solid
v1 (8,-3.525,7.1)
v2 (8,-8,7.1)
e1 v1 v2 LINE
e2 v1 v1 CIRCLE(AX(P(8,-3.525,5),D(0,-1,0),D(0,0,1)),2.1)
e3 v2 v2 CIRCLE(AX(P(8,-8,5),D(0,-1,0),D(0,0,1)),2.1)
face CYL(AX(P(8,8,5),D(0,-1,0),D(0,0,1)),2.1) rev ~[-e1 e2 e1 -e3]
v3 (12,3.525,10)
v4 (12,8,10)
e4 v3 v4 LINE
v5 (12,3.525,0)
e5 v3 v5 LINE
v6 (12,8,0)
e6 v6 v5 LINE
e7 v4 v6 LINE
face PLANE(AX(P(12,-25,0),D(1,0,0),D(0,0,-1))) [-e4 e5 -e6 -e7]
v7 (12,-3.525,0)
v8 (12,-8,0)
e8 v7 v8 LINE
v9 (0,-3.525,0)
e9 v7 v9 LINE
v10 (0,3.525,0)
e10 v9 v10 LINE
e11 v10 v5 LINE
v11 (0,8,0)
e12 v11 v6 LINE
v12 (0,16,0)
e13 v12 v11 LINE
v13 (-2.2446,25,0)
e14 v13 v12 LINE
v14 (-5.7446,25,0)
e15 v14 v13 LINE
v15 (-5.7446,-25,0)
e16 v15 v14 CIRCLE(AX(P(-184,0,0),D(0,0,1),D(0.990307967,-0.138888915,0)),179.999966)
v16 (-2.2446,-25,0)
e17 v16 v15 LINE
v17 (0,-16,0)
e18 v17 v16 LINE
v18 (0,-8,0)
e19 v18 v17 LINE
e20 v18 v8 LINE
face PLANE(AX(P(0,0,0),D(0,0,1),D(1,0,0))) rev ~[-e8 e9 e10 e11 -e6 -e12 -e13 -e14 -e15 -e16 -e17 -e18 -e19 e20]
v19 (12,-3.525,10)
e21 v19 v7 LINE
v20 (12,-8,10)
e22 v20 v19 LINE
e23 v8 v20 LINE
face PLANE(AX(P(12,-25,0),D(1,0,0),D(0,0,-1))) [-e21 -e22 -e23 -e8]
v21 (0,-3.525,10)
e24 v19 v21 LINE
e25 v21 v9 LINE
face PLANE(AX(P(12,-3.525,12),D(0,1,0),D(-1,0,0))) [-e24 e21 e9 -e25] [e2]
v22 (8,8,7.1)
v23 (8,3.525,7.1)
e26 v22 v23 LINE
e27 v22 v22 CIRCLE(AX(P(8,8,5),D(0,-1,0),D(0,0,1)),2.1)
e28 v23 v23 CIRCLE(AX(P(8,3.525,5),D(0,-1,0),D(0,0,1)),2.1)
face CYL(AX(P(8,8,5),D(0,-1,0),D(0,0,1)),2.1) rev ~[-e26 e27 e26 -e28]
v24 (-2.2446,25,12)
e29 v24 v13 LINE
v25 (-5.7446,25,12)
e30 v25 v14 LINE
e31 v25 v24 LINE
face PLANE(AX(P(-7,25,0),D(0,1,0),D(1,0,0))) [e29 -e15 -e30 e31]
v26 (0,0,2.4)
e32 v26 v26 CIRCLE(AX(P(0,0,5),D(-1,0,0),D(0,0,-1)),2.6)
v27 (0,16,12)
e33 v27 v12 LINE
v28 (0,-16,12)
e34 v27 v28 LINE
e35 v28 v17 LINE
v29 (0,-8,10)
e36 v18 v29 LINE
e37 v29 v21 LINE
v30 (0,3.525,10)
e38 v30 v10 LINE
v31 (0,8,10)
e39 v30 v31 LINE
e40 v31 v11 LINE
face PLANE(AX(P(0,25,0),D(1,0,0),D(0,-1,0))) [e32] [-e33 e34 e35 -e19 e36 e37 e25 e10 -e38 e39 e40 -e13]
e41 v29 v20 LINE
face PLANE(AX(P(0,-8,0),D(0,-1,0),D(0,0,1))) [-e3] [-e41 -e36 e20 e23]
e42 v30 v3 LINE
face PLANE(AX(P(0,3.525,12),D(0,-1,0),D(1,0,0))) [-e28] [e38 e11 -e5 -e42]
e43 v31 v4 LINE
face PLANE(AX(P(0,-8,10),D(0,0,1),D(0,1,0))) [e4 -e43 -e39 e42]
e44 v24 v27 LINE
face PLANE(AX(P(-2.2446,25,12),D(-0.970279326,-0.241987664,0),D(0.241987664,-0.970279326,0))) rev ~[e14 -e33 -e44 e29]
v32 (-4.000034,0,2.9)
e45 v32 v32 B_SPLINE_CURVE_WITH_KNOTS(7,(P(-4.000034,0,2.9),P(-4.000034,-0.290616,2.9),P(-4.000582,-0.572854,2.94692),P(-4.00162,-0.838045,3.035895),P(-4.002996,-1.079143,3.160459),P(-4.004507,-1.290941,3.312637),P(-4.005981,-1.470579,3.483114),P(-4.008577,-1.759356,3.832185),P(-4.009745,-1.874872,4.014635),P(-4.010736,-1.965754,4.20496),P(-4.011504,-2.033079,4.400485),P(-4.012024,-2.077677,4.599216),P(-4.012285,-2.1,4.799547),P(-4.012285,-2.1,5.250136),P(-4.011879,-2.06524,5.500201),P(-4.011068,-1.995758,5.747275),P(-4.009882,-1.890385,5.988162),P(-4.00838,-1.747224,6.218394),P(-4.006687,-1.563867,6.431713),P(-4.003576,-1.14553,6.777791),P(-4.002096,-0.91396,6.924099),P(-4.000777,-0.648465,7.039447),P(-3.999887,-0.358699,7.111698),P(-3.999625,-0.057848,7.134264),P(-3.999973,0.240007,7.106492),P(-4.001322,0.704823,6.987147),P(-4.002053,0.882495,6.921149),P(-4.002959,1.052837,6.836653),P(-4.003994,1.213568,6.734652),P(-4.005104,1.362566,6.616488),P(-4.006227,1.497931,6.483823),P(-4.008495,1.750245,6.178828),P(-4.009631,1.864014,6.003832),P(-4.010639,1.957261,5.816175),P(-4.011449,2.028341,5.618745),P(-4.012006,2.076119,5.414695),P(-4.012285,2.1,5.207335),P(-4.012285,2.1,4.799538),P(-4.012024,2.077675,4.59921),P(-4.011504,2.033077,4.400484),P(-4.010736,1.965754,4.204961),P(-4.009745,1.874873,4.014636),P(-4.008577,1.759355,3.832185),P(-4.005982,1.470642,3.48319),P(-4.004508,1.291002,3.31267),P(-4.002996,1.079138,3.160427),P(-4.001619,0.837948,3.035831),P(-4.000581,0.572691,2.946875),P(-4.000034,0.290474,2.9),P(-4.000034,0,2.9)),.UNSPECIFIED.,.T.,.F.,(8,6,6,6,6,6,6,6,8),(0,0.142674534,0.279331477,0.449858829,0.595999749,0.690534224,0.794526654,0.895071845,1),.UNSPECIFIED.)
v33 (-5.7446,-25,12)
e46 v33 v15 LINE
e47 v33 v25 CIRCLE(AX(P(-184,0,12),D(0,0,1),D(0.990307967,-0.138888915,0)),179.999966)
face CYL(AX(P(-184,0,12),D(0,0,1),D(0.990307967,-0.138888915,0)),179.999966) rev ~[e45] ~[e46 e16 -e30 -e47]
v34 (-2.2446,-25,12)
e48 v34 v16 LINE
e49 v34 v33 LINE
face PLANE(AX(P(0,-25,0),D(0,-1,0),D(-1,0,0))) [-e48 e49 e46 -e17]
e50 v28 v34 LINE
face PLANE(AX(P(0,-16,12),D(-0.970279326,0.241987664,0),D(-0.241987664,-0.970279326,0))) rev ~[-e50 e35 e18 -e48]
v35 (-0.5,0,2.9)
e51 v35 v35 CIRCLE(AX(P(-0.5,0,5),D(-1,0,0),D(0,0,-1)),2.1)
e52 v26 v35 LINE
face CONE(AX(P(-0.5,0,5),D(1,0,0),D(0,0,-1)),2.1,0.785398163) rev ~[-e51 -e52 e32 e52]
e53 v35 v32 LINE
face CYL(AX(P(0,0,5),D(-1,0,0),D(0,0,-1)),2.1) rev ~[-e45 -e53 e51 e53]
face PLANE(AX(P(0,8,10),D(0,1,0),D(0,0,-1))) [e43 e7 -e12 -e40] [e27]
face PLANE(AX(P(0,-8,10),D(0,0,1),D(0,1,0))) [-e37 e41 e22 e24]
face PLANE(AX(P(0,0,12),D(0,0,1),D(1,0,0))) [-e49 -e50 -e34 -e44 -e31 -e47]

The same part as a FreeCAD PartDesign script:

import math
import FreeCAD as App
import Part
import Sketcher


def edges_at(feature, points):
    """Names of the edges that pass closest to the given points."""
    edges = feature.Shape.Edges
    near = lambda p: min(range(len(edges)), key=lambda i: edges[i].distToShape(Part.Vertex(*p))[0])
    return sorted({f"Edge{near(p) + 1}" for p in points})


def add_polygon(sketch, points):
    """Adds a closed chain of lines whose ends are joined by coincident constraints."""
    first, n = sketch.GeometryCount, len(points)
    for a, b in zip(points, points[1:] + points[:1]):
        sketch.addGeometry(Part.LineSegment(App.Vector(*a, 0), App.Vector(*b, 0)), False)
    for i in range(n):
        sketch.addConstraint(Sketcher.Constraint("Coincident", first + i, 2, first + (i + 1) % n, 1))

doc = App.newDocument("Part")
body = doc.addObject("PartDesign::Body", "Body")

sketch1 = body.newObject("Sketcher::SketchObject", "Sketch")
sketch1.AttachmentSupport = (doc.getObject("XY_Plane"), [""])
sketch1.MapMode = "FlatFace"
add_polygon(sketch1, [(0, 25), (-7, 25), (-7, -25), (0, -25)])
sketch1.addConstraint([
    Sketcher.Constraint("Horizontal", 0),
    Sketcher.Constraint("Vertical", 1),
    Sketcher.Constraint("Horizontal", 2),
    Sketcher.Constraint("Vertical", 3),
    Sketcher.Constraint("Symmetric", 2, 2, 3, 2, -1, 1),
    Sketcher.Constraint("DistanceX", 0, 2, 0, 1, 7.0),
    Sketcher.Constraint("DistanceY", 1, 2, 1, 1, 50.0),
])
pad1 = body.newObject("PartDesign::Pad", "Pad")
pad1.Profile = sketch1
pad1.Length = 12

sketch2 = body.newObject("Sketcher::SketchObject", "Sketch001")
sketch2.AttachmentSupport = (doc.getObject("YZ_Plane"), [""])
sketch2.MapMode = "FlatFace"
add_polygon(sketch2, [(8, 0), (8, 10), (-8, 10), (-8, 0)])
sketch2.addConstraint([
    Sketcher.Constraint("Vertical", 0),
    Sketcher.Constraint("Horizontal", 1),
    Sketcher.Constraint("Vertical", 2),
    Sketcher.Constraint("Horizontal", 3),
    Sketcher.Constraint("Symmetric", 2, 2, 3, 2, -1, 1),
    Sketcher.Constraint("DistanceX", 1, 2, 1, 1, 16.0),
    Sketcher.Constraint("DistanceY", 0, 1, 0, 2, 10.0),
])
pad2 = body.newObject("PartDesign::Pad", "Pad001")
pad2.Profile = sketch2
pad2.Length = 12

sketch3 = body.newObject("Sketcher::SketchObject", "Sketch002")
sketch3.AttachmentSupport = (doc.getObject("XY_Plane"), [""])
sketch3.MapMode = "FlatFace"
sketch3.AttachmentOffset = App.Placement(App.Vector(0, 0, 12), App.Rotation())
add_polygon(sketch3, [(0, -3.525), (12, -3.525), (12, 3.525), (0, 3.525)])
sketch3.addConstraint([
    Sketcher.Constraint("Horizontal", 0),
    Sketcher.Constraint("Vertical", 1),
    Sketcher.Constraint("Horizontal", 2),
    Sketcher.Constraint("Vertical", 3),
    Sketcher.Constraint("Symmetric", 2, 2, 3, 2, -1, 1),
    Sketcher.Constraint("DistanceY", 1, 1, 1, 2, 7.05),
    Sketcher.Constraint("DistanceX", 0, 1, 0, 2, 12.0),
])
pocket1 = body.newObject("PartDesign::Pocket", "Pocket")
pocket1.Profile = sketch3
pocket1.Type = "ThroughAll"

sketch4 = body.newObject("Sketcher::SketchObject", "Sketch003")
sketch4.AttachmentSupport = (doc.getObject("XZ_Plane"), [""])
sketch4.MapMode = "FlatFace"
sketch4.AttachmentOffset = App.Placement(App.Vector(0, 0, -8), App.Rotation())
sketch4.addGeometry(Part.Circle(App.Vector(8, 5, 0), App.Vector(0, 0, 1), 2.1), False)
sketch4.addConstraint([
    Sketcher.Constraint("Diameter", 0, 4.2),
    Sketcher.Constraint("DistanceX", -1, 1, 0, 3, 8.0),
    Sketcher.Constraint("DistanceY", -1, 1, 0, 3, 5.0),
])
doc.recompute()
hole = body.newObject("PartDesign::Hole", "Hole")
hole.Profile = sketch4
hole.ThreadType = "None"
hole.Diameter = 4.2
hole.DepthType = "ThroughAll"
hole.Reversed = True

sketch5 = body.newObject("Sketcher::SketchObject", "Sketch004")
sketch5.AttachmentSupport = (doc.getObject("YZ_Plane"), [""])
sketch5.MapMode = "FlatFace"
sketch5.addGeometry(Part.Circle(App.Vector(0, 5, 0), App.Vector(0, 0, 1), 2.1), False)
sketch5.addConstraint([
    Sketcher.Constraint("PointOnObject", 0, 3, -2),
    Sketcher.Constraint("Diameter", 0, 4.2),
    Sketcher.Constraint("DistanceY", -1, 1, 0, 3, 5.0),
])
doc.recompute()
hole2 = body.newObject("PartDesign::Hole", "Hole001")
hole2.Profile = sketch5
hole2.ThreadType = "None"
hole2.Diameter = 4.2
hole2.DepthType = "ThroughAll"

sketch6 = body.newObject("Sketcher::SketchObject", "Sketch005")
sketch6.AttachmentSupport = (doc.getObject("XY_Plane"), [""])
sketch6.MapMode = "FlatFace"
sketch6.AttachmentOffset = App.Placement(App.Vector(0, 0, 12), App.Rotation())
sketch6.addGeometry(Part.LineSegment(App.Vector(-7, 25, 0), App.Vector(-7, -25, 0)), False)
sketch6.addGeometry(Part.LineSegment(App.Vector(-7, -25, 0), App.Vector(-5.7446, -25, 0)), False)
sketch6.addGeometry(Part.ArcOfCircle(Part.Circle(App.Vector(-184, 0, 0), App.Vector(0, 0, 1), 179.999966), math.radians(-7.983558), math.radians(7.983558)), False)
sketch6.addGeometry(Part.LineSegment(App.Vector(-5.7446, 25, 0), App.Vector(-7, 25, 0)), False)
add_polygon(sketch6, [(0, -16), (-2.2446, -25), (0, -25)])
add_polygon(sketch6, [(0, 25), (-2.2446, 25), (0, 16)])
sketch6.addConstraint([
    Sketcher.Constraint("Coincident", 0, 2, 1, 1),
    Sketcher.Constraint("Coincident", 1, 2, 2, 1),
    Sketcher.Constraint("Coincident", 2, 2, 3, 1),
    Sketcher.Constraint("Coincident", 3, 2, 0, 1),
    Sketcher.Constraint("Vertical", 0),
    Sketcher.Constraint("Horizontal", 1),
    Sketcher.Constraint("Horizontal", 3),
    Sketcher.Constraint("Horizontal", 5),
    Sketcher.Constraint("Vertical", 6),
    Sketcher.Constraint("Horizontal", 7),
    Sketcher.Constraint("Vertical", 9),
    Sketcher.Constraint("Symmetric", 6, 2, 8, 2, -1, 1),
    Sketcher.Constraint("Symmetric", 1, 2, 2, 2, -1),
    Sketcher.Constraint("Symmetric", 4, 2, 7, 2, -1),
    Sketcher.Constraint("PointOnObject", 5, 2, -2),
    Sketcher.Constraint("Horizontal", 1, 2, 4, 2),
    Sketcher.Constraint("Radius", 2, 180.0),
    Sketcher.Constraint("DistanceX", 1, 2, 4, 2, 3.5),
    Sketcher.Constraint("DistanceY", 0, 2, 0, 1, 50.0),
    Sketcher.Constraint("DistanceY", 6, 1, 6, 2, 9.0),
    Sketcher.Constraint("DistanceX", 2, 3, -1, 1, 184.0),
    Sketcher.Constraint("DistanceX", 0, 2, -1, 1, 7.0),
])
pocket2 = body.newObject("PartDesign::Pocket", "Pocket001")
pocket2.Profile = sketch6
pocket2.Type = "ThroughAll"
doc.recompute()

chamfer = body.newObject("PartDesign::Chamfer", "Chamfer")
chamfer.Base = (pocket2, edges_at(pocket2, [(0, 0, 7.1)]))
chamfer.Size = 0.5

doc.recompute()
